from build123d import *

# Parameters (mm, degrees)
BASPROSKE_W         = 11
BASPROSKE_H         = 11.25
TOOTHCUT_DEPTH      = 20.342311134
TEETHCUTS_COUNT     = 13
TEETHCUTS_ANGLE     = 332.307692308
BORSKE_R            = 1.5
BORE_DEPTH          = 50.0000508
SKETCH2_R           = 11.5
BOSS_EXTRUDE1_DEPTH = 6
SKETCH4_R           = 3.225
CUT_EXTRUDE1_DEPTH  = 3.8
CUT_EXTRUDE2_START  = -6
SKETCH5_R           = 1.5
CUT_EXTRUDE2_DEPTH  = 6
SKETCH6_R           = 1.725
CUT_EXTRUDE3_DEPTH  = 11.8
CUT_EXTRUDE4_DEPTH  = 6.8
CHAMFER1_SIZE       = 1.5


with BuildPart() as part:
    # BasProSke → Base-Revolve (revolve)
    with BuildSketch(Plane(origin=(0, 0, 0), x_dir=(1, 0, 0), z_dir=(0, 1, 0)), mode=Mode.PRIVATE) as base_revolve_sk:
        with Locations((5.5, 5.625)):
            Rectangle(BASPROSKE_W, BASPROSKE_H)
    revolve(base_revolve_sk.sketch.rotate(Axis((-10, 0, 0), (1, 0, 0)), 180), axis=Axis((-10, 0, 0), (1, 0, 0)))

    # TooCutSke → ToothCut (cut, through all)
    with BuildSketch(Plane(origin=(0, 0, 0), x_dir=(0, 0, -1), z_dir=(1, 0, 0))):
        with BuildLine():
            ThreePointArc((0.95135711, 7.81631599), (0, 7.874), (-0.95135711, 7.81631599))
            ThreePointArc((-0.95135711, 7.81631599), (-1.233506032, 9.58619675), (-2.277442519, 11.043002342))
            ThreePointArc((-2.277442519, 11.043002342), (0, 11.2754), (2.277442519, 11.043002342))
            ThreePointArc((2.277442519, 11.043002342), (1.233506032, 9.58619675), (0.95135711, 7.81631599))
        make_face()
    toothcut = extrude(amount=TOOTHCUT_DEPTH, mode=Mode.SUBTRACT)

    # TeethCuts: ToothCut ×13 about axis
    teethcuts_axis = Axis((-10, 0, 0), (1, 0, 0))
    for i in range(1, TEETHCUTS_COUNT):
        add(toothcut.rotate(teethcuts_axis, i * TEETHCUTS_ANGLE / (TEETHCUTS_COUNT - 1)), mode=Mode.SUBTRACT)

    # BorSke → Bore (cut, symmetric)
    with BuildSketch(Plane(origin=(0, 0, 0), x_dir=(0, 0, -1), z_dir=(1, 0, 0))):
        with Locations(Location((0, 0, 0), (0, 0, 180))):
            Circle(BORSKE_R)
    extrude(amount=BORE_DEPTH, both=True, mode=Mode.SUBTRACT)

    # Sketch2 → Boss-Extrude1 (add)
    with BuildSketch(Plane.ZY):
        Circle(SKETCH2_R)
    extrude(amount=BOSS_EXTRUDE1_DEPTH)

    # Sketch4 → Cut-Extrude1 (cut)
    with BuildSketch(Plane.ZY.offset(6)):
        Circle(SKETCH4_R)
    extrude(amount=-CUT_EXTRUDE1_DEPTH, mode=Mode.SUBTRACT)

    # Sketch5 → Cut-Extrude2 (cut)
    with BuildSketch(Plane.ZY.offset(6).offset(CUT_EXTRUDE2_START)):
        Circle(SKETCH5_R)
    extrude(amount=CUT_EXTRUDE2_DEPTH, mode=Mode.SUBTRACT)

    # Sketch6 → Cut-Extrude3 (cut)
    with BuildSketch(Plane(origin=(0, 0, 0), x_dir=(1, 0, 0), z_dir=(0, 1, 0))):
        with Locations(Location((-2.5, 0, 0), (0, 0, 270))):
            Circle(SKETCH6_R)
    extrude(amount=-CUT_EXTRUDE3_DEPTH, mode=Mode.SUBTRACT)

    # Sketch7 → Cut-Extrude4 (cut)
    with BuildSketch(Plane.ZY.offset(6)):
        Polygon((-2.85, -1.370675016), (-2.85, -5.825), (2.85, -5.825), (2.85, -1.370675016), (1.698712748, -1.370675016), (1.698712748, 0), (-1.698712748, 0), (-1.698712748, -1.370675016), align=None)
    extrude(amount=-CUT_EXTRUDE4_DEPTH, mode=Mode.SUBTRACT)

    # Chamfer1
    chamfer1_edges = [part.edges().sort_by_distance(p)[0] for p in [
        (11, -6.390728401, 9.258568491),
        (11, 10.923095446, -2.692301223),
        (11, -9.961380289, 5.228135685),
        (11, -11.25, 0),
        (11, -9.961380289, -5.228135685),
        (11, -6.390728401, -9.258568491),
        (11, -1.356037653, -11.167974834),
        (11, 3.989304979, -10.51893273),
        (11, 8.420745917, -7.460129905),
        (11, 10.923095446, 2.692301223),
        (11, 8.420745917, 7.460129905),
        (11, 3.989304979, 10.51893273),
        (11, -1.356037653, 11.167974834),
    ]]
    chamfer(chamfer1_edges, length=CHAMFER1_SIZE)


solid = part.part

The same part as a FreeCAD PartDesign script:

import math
import FreeCAD as App
import Part
import Sketcher
Q = App.Units.Quantity


def edges_at(feature, points):
    """Names of the edges that pass closest to the given points."""
    edges = feature.Shape.Edges
    near = lambda p: min(range(len(edges)), key=lambda i: edges[i].distToShape(Part.Vertex(*p))[0])
    return sorted({f"Edge{near(p) + 1}" for p in points})


def add_polygon(sketch, points):
    """Adds a closed chain of lines whose ends are joined by coincident constraints."""
    first, n = sketch.GeometryCount, len(points)
    for a, b in zip(points, points[1:] + points[:1]):
        sketch.addGeometry(Part.LineSegment(App.Vector(*a, 0), App.Vector(*b, 0)), False)
    for i in range(n):
        sketch.addConstraint(Sketcher.Constraint("Coincident", first + i, 2, first + (i + 1) % n, 1))

doc = App.newDocument("Part")
body = doc.addObject("PartDesign::Body", "Body")

sketch1 = doc.addObject("Sketcher::SketchObject", "Sketch")
body.addObject(sketch1)
sketch1.AttachmentSupport = (doc.XZ_Plane, [""])
sketch1.MapMode = "FlatFace"
add_polygon(sketch1, [(0, -11.25), (0, 0), (11, 0), (11, -11.25)])
sketch1.addConstraint(Sketcher.Constraint("Vertical", 0))
sketch1.addConstraint(Sketcher.Constraint("Horizontal", 1))
sketch1.addConstraint(Sketcher.Constraint("Vertical", 2))
sketch1.addConstraint(Sketcher.Constraint("Horizontal", 3))
sketch1.addConstraint(Sketcher.Constraint("Coincident", 0, 2, -1, 1))
sketch1.addConstraint(Sketcher.Constraint("DistanceX", 1, 1, 1, 2, Q("11 mm")))
sketch1.addConstraint(Sketcher.Constraint("DistanceY", 0, 1, 0, 2, Q("11.25 mm")))
revolution = doc.addObject("PartDesign::Revolution", "Revolution")
body.addObject(revolution)
revolution.Profile = sketch1
revolution.ReferenceAxis = (sketch1, ["H_Axis"])
revolution.Angle = 360

sketch2 = doc.addObject("Sketcher::SketchObject", "Sketch001")
body.addObject(sketch2)
sketch2.AttachmentSupport = (doc.YZ_Plane, [""])
sketch2.MapMode = "FlatFace"
sketch2.addGeometry(Part.ArcOfCircle(Part.Circle(App.Vector(0, 0, 0), App.Vector(0, 0, 1), 7.874), math.radians(-6.939579), math.radians(6.939579)), False)
sketch2.addGeometry(Part.ArcOfCircle(Part.Circle(App.Vector(8.10371, -4.840754, 0), App.Vector(0, 0, 1), 3.9), math.radians(41.09118), math.radians(94.226008)), False)
sketch2.addGeometry(Part.ArcOfCircle(Part.Circle(App.Vector(0, 0, 0), App.Vector(0, 0, 1), 11.2754), math.radians(-11.652961), math.radians(11.652961)), False)
sketch2.addGeometry(Part.ArcOfCircle(Part.Circle(App.Vector(8.10371, 4.840754, 0), App.Vector(0, 0, 1), 3.9), math.radians(-94.226008), math.radians(-41.09118)), False)
sketch2.addConstraint(Sketcher.Constraint("Coincident", 0, 1, 1, 2))
sketch2.addConstraint(Sketcher.Constraint("Coincident", 1, 1, 2, 1))
sketch2.addConstraint(Sketcher.Constraint("Coincident", 2, 2, 3, 2))
sketch2.addConstraint(Sketcher.Constraint("Coincident", 3, 1, 0, 2))
sketch2.addConstraint(Sketcher.Constraint("Coincident", 0, 3, -1, 1))
sketch2.addConstraint(Sketcher.Constraint("Coincident", 2, 3, -1, 1))
sketch2.addConstraint(Sketcher.Constraint("Equal", 1, 3))
sketch2.addConstraint(Sketcher.Constraint("Symmetric", 1, 3, 3, 3, -1))
sketch2.addConstraint(Sketcher.Constraint("Radius", 1, Q("3.9 mm")))
sketch2.addConstraint(Sketcher.Constraint("Radius", 0, Q("7.874 mm")))
sketch2.addConstraint(Sketcher.Constraint("Radius", 2, Q("11.2754 mm")))
sketch2.addConstraint(Sketcher.Constraint("DistanceY", 0, 1, 2, 2, Q("3.2288 mm")))
sketch2.addConstraint(Sketcher.Constraint("DistanceX", -1, 1, 1, 3, Q("8.10371 mm")))
pocket1 = doc.addObject("PartDesign::Pocket", "Pocket")
body.addObject(pocket1)
pocket1.Profile = sketch2
pocket1.Type = "ThroughAll"
pocket1.Reversed = True
doc.recompute()

polarpattern = doc.addObject("PartDesign::PolarPattern", "PolarPattern")
body.addObject(polarpattern)
polarpattern.Originals = [pocket1]
polarpattern.Axis = (doc.X_Axis, [""])
polarpattern.Angle = 360
polarpattern.Occurrences = 13
body.Tip = polarpattern

sketch3 = doc.addObject("Sketcher::SketchObject", "Sketch002")
body.addObject(sketch3)
sketch3.AttachmentSupport = (doc.YZ_Plane, [""])
sketch3.MapMode = "FlatFace"
sketch3.addGeometry(Part.Circle(App.Vector(0, 0, 0), App.Vector(0, 0, 1), 1.5), False)
sketch3.addConstraint(Sketcher.Constraint("Coincident", 0, 3, -1, 1))
sketch3.addConstraint(Sketcher.Constraint("Diameter", 0, Q("3 mm")))
pocket2 = doc.addObject("PartDesign::Pocket", "Pocket001")
body.addObject(pocket2)
pocket2.Profile = sketch3
pocket2.Length = 100.000102
pocket2.Midplane = True

sketch4 = doc.addObject("Sketcher::SketchObject", "Sketch003")
body.addObject(sketch4)
sketch4.AttachmentSupport = (doc.YZ_Plane, [""])
sketch4.MapMode = "FlatFace"
sketch4.addGeometry(Part.Circle(App.Vector(0, 0, 0), App.Vector(0, 0, 1), 11.5), False)
sketch4.addConstraint(Sketcher.Constraint("Coincident", 0, 3, -1, 1))
sketch4.addConstraint(Sketcher.Constraint("Diameter", 0, Q("23 mm")))
pad1 = doc.addObject("PartDesign::Pad", "Pad")
body.addObject(pad1)
pad1.Profile = sketch4
pad1.Length = 6
pad1.Reversed = True

sketch5 = doc.addObject("Sketcher::SketchObject", "Sketch004")
body.addObject(sketch5)
sketch5.AttachmentSupport = (doc.YZ_Plane, [""])
sketch5.MapMode = "FlatFace"
sketch5.AttachmentOffset = App.Placement(App.Vector(0, 0, -6), App.Rotation())
sketch5.addGeometry(Part.Circle(App.Vector(0, 0, 0), App.Vector(0, 0, 1), 3.225), False)
sketch5.addConstraint(Sketcher.Constraint("Coincident", 0, 3, -1, 1))
sketch5.addConstraint(Sketcher.Constraint("Diameter", 0, Q("6.45 mm")))
pocket3 = doc.addObject("PartDesign::Pocket", "Pocket002")
body.addObject(pocket3)
pocket3.Profile = sketch5
pocket3.Length = 3.8
pocket3.Reversed = True

sketch6 = doc.addObject("Sketcher::SketchObject", "Sketch005")
body.addObject(sketch6)
sketch6.AttachmentSupport = (doc.YZ_Plane, [""])
sketch6.MapMode = "FlatFace"
sketch6.addGeometry(Part.Circle(App.Vector(0, 0, 0), App.Vector(0, 0, 1), 1.5), False)
sketch6.addConstraint(Sketcher.Constraint("Coincident", 0, 3, -1, 1))
sketch6.addConstraint(Sketcher.Constraint("Diameter", 0, Q("3 mm")))
pocket4 = doc.addObject("PartDesign::Pocket", "Pocket003")
body.addObject(pocket4)
pocket4.Profile = sketch6
pocket4.Length = 6

sketch7 = doc.addObject("Sketcher::SketchObject", "Sketch006")
body.addObject(sketch7)
sketch7.AttachmentSupport = (doc.XZ_Plane, [""])
sketch7.MapMode = "FlatFace"
sketch7.addGeometry(Part.Circle(App.Vector(-2.5, 0, 0), App.Vector(0, 0, 1), 1.725), False)
sketch7.addConstraint(Sketcher.Constraint("PointOnObject", 0, 3, -1))
sketch7.addConstraint(Sketcher.Constraint("Diameter", 0, Q("3.45 mm")))
sketch7.addConstraint(Sketcher.Constraint("DistanceX", 0, 3, -1, 1, Q("2.5 mm")))
pocket5 = doc.addObject("PartDesign::Pocket", "Pocket004")
body.addObject(pocket5)
pocket5.Profile = sketch7
pocket5.Length = 11.8
pocket5.Reversed = True

sketch8 = doc.addObject("Sketcher::SketchObject", "Sketch007")
body.addObject(sketch8)
sketch8.AttachmentSupport = (doc.YZ_Plane, [""])
sketch8.MapMode = "FlatFace"
sketch8.AttachmentOffset = App.Placement(App.Vector(0, 0, -6), App.Rotation())
add_polygon(sketch8, [(-1.370675, -2.85), (-5.825, -2.85), (-5.825, 2.85), (-1.370675, 2.85), (-1.370675, 1.698713), (0, 1.698713), (0, -1.698713), (-1.370675, -1.698713)])
sketch8.addConstraint(Sketcher.Constraint("Horizontal", 0))
sketch8.addConstraint(Sketcher.Constraint("Vertical", 1))
sketch8.addConstraint(Sketcher.Constraint("Horizontal", 2))
sketch8.addConstraint(Sketcher.Constraint("Vertical", 3))
sketch8.addConstraint(Sketcher.Constraint("Horizontal", 4))
sketch8.addConstraint(Sketcher.Constraint("Vertical", 5))
sketch8.addConstraint(Sketcher.Constraint("Horizontal", 6))
sketch8.addConstraint(Sketcher.Constraint("Vertical", 7))
sketch8.addConstraint(Sketcher.Constraint("Symmetric", 4, 2, 5, 2, -1, 1))
sketch8.addConstraint(Sketcher.Constraint("Symmetric", 2, 2, 7, 2, -1))
sketch8.addConstraint(Sketcher.Constraint("DistanceY", 1, 1, 1, 2, Q("5.7 mm")))
sketch8.addConstraint(Sketcher.Constraint("DistanceX", 0, 2, -1, 1, Q("5.825 mm")))
sketch8.addConstraint(Sketcher.Constraint("DistanceX", 0, 2, 0, 1, Q("4.454325 mm")))
sketch8.addConstraint(Sketcher.Constraint("DistanceY", 3, 2, 3, 1, Q("1.151287 mm")))
pocket6 = doc.addObject("PartDesign::Pocket", "Pocket005")
body.addObject(pocket6)
pocket6.Profile = sketch8
pocket6.Length = 6.8
pocket6.Reversed = True
doc.recompute()

chamfer = doc.addObject("PartDesign::Chamfer", "Chamfer")
body.addObject(chamfer)
chamfer.Base = (pocket6, edges_at(pocket6, [
    (11, -6.391, 9.259),
    (11, 10.923, -2.692),
    (11, -9.961, 5.228),
    (11, -11.25, 0),
    (11, -9.961, -5.228),
    (11, -6.391, -9.259),
    (11, -1.356, -11.168),
    (11, 3.989, -10.519),
    (11, 8.421, -7.46),
    (11, 10.923, 2.692),
    (11, 8.421, 7.46),
    (11, 3.989, 10.519),
    (11, -1.356, 11.168),
]))
chamfer.Size = 1.5

doc.recompute()
